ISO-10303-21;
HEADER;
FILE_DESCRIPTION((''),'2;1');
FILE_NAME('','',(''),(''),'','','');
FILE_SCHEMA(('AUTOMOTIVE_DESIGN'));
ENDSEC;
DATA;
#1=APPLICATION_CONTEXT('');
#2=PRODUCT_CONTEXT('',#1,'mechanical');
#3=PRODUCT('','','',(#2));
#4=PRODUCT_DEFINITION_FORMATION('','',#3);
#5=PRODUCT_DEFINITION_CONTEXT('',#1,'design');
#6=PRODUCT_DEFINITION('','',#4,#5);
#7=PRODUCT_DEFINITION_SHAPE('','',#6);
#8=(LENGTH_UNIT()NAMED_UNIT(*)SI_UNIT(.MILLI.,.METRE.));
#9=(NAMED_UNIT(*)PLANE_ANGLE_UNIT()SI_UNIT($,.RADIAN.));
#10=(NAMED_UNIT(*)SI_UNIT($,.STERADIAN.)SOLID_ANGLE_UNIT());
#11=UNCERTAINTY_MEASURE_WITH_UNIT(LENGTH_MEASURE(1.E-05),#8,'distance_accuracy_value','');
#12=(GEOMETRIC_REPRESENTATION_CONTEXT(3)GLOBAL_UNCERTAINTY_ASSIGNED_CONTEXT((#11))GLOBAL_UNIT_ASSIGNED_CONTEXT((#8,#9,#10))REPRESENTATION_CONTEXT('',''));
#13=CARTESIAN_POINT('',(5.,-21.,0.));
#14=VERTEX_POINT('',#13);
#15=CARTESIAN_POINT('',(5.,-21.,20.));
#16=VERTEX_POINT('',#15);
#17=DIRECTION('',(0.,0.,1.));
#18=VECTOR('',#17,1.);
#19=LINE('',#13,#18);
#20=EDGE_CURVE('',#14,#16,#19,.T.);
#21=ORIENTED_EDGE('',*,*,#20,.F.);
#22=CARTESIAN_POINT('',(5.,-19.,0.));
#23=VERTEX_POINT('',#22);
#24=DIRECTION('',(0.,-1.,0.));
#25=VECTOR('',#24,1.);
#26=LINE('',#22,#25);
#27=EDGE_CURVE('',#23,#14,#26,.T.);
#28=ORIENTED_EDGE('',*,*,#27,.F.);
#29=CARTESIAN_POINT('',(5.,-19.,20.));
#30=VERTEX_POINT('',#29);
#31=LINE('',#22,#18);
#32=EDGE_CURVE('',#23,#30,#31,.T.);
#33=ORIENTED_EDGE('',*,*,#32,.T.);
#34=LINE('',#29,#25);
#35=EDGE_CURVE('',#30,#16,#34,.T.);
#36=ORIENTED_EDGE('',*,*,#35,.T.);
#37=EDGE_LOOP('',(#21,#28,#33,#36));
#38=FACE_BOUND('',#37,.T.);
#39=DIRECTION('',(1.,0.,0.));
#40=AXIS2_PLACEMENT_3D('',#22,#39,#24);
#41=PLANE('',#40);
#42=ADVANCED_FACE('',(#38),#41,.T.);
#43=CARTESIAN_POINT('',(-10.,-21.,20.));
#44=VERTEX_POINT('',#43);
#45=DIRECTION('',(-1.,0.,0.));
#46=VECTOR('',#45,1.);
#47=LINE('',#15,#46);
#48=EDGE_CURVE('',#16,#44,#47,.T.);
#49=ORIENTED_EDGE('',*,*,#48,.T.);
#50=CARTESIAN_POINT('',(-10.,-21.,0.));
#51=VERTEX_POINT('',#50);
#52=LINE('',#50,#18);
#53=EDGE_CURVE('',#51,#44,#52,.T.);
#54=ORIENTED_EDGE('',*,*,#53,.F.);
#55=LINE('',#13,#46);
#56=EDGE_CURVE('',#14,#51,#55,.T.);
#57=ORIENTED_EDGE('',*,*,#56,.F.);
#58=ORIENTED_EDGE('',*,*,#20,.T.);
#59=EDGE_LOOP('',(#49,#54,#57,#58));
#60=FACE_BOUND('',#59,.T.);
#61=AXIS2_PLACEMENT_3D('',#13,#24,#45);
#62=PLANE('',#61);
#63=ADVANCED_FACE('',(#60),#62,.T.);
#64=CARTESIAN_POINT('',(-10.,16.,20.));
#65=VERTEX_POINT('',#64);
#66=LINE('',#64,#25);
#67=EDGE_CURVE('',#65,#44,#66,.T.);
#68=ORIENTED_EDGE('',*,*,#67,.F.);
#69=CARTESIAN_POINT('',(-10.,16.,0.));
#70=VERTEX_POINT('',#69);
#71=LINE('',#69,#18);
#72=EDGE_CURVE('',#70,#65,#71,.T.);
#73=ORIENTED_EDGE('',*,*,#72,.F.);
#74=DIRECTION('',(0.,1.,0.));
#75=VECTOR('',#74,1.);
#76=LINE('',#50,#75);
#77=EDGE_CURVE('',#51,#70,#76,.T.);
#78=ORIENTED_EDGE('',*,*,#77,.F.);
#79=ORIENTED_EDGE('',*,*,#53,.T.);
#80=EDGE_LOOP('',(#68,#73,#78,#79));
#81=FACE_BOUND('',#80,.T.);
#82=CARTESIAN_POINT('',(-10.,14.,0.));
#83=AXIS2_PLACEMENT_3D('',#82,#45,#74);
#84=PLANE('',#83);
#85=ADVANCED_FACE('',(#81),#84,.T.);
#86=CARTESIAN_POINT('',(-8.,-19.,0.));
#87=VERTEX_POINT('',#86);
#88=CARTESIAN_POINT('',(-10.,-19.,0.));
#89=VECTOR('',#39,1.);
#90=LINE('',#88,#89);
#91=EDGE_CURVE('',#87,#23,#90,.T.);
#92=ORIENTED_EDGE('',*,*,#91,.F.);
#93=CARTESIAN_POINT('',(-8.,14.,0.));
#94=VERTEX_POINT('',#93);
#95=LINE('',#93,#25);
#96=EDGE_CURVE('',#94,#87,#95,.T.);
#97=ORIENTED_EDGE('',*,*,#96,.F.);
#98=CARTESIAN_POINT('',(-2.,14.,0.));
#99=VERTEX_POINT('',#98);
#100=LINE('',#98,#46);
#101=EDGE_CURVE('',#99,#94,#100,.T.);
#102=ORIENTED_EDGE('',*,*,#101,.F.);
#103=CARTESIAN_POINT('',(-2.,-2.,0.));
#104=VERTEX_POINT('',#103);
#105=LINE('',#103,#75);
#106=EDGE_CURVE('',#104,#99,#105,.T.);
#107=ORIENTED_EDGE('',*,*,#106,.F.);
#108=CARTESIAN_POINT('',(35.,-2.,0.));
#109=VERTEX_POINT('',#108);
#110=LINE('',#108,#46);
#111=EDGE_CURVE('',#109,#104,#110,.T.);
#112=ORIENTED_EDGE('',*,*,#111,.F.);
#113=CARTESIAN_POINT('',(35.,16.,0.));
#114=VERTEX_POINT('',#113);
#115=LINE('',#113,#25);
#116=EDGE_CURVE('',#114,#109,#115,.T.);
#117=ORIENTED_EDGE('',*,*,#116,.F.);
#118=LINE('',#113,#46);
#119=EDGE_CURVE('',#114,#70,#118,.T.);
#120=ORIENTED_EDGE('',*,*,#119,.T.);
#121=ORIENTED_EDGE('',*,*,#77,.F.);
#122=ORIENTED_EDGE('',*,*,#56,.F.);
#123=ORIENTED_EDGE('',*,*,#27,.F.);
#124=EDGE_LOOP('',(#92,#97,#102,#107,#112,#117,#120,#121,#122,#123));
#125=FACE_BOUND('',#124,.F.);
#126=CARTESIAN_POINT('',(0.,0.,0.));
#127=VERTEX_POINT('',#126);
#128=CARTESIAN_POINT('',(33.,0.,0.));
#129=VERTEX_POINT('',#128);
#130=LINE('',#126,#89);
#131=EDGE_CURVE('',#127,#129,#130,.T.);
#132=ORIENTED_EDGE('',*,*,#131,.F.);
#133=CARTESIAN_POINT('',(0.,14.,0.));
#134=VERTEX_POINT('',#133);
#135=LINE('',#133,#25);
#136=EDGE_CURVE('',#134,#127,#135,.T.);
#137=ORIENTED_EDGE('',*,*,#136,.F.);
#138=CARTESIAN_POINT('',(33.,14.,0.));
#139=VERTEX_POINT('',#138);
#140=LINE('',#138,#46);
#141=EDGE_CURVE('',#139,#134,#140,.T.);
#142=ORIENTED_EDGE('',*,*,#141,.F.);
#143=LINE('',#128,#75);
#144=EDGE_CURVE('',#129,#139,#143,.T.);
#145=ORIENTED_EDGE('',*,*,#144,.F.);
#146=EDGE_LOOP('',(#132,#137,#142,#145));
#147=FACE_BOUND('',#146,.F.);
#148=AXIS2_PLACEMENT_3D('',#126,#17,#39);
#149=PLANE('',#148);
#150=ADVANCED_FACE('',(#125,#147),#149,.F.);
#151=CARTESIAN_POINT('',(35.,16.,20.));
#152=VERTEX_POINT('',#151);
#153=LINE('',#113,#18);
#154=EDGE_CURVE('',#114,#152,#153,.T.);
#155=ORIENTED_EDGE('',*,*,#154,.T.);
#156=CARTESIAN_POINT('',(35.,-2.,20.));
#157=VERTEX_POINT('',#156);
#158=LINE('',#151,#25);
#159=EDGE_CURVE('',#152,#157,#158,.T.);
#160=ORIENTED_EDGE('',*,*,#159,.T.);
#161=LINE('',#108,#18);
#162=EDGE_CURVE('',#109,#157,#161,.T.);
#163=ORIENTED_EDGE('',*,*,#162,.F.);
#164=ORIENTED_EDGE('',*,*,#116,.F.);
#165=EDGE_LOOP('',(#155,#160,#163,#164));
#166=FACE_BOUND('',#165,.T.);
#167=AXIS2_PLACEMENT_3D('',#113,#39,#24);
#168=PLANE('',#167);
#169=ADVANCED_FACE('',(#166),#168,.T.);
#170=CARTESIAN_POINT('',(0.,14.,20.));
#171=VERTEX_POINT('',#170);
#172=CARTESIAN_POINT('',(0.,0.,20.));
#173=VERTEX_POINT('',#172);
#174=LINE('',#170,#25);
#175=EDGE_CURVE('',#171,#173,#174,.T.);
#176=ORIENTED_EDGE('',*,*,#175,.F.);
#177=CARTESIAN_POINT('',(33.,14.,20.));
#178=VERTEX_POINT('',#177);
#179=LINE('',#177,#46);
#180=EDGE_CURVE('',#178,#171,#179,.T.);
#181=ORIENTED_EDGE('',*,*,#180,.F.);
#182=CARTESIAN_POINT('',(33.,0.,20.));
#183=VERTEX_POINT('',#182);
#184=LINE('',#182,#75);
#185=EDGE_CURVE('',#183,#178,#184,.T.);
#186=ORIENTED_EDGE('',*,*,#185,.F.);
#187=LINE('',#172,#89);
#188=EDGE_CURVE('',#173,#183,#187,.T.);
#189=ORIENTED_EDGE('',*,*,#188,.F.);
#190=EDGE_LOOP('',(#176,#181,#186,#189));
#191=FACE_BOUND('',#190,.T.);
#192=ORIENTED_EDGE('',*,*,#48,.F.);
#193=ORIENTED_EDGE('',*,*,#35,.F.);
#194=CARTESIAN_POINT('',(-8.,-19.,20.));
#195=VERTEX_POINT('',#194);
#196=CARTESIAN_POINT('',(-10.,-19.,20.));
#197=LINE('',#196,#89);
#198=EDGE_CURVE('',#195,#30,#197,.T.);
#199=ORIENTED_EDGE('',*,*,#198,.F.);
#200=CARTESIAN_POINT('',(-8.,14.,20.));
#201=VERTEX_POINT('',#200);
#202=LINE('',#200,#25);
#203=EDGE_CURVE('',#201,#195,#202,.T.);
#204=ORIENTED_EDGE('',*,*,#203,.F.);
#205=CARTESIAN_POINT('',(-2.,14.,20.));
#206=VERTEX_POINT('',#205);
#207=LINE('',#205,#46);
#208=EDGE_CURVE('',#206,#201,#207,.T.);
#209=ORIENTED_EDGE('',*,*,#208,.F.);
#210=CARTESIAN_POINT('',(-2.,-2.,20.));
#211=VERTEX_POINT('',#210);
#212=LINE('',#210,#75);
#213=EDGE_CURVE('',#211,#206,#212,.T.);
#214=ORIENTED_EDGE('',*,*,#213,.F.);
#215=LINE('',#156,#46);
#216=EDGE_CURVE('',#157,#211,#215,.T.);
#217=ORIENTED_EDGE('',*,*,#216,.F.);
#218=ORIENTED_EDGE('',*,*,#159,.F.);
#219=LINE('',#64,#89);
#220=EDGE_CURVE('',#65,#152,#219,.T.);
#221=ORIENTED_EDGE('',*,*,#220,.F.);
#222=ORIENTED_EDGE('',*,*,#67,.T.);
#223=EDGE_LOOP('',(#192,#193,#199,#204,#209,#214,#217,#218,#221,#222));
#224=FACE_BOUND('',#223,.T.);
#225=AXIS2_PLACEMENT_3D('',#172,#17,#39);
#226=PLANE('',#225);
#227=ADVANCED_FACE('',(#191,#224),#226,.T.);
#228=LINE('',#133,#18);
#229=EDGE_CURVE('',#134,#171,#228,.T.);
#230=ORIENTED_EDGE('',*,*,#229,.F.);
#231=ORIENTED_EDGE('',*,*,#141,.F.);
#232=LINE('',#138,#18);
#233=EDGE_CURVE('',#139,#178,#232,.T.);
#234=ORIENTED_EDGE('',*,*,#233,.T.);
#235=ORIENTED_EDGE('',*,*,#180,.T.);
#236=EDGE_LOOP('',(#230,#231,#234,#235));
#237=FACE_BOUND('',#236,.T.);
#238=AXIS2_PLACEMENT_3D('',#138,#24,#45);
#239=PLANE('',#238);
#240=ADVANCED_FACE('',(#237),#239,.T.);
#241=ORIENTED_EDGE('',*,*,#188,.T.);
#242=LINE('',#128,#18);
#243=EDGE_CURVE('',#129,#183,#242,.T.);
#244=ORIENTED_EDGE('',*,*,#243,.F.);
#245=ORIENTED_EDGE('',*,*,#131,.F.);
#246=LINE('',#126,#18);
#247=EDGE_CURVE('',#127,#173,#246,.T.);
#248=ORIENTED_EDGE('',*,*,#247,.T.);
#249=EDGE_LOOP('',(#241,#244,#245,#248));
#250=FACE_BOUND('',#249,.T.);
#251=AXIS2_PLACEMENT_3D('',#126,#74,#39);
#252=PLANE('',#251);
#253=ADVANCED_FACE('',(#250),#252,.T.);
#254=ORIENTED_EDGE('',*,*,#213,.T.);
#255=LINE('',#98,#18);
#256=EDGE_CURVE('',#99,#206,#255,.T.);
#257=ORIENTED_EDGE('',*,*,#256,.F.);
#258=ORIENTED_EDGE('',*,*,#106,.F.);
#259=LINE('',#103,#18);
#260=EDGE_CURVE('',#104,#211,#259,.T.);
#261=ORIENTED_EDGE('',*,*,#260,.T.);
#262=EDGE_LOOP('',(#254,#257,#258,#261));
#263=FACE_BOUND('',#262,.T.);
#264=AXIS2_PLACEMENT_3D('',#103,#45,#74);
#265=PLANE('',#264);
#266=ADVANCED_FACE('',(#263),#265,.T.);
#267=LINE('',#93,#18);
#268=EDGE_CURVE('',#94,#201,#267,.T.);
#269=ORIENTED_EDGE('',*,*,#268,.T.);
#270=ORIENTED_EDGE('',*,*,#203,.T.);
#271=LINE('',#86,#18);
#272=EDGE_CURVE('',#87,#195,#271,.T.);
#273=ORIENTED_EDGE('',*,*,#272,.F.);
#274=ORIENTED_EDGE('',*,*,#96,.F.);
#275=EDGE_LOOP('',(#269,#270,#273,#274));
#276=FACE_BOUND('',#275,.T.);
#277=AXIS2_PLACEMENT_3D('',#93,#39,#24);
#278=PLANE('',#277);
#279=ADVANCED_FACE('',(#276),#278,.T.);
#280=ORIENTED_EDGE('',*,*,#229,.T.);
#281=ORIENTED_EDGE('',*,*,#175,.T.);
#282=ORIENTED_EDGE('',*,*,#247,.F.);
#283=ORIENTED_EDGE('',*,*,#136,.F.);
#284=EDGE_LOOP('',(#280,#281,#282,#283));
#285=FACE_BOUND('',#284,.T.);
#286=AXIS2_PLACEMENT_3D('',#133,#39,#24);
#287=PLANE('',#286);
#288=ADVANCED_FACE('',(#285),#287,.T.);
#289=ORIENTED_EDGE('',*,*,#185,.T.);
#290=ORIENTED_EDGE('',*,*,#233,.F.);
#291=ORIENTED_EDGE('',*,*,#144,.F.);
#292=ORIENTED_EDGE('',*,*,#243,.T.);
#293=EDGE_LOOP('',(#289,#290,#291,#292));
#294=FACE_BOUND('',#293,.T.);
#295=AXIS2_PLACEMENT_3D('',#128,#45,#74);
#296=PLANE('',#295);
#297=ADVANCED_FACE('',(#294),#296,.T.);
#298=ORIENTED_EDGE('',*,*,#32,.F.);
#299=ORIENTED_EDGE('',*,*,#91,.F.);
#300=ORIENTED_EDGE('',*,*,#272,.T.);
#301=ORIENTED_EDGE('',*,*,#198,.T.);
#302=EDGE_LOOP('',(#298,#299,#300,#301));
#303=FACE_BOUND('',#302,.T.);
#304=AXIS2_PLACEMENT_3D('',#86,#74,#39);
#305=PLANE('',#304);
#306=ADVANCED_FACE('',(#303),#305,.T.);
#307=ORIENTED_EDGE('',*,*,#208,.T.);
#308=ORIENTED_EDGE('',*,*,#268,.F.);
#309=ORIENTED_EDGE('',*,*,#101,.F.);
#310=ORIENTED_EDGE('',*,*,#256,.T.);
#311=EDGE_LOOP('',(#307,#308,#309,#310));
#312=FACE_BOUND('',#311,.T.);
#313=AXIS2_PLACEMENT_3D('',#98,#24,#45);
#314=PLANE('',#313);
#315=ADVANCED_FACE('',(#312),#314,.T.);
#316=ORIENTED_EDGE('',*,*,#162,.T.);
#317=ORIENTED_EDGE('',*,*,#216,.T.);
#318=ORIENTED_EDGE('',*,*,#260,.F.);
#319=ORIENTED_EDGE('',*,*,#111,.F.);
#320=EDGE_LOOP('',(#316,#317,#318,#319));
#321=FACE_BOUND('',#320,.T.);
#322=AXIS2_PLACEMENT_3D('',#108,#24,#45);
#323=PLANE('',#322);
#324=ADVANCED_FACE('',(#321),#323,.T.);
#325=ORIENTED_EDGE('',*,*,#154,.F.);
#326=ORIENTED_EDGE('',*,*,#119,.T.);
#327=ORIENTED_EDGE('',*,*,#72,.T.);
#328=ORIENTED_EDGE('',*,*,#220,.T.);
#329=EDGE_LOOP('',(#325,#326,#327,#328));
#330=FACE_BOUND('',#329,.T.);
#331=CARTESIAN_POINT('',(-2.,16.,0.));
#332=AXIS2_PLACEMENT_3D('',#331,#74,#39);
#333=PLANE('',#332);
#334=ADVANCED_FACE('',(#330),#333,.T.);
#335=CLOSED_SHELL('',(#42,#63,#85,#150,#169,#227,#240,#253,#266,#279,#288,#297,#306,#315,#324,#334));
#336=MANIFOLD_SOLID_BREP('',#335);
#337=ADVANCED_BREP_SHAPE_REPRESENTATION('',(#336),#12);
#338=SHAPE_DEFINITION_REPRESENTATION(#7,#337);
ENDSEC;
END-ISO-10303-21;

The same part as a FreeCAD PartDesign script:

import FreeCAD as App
import Part
import Sketcher

V = App.Vector
Q = App.Units.Quantity


def add_polygon(sketch, points):
    """Adds a closed chain of lines whose ends are joined by coincident constraints."""
    first, n = sketch.GeometryCount, len(points)
    for a, b in zip(points, points[1:] + points[:1]):
        sketch.addGeometry(Part.LineSegment(App.Vector(*a, 0), App.Vector(*b, 0)), False)
    for i in range(n):
        sketch.addConstraint(Sketcher.Constraint("Coincident", first + i, 2, first + (i + 1) % n, 1))

doc = App.newDocument("Part")
body = doc.addObject("PartDesign::Body", "Body")

# Sketch on XY plane
sketch1 = body.newObject("Sketcher::SketchObject", "Sketch")
sketch1.AttachmentSupport = (doc.getObject("XY_Plane"), [""])
sketch1.MapMode = "FlatFace"
add_polygon(sketch1, [(35, 16), (-10, 16), (-10, -21), (5, -21), (5, -19), (-8, -19), (-8, 14), (-2, 14), (-2, -2), (35, -2)])  # lines 0-9
add_polygon(sketch1, [(33, 0), (0, 0), (0, 14), (33, 14)])  # lines 10-13
sketch1.addConstraint(Sketcher.Constraint("Horizontal", 0))
sketch1.addConstraint(Sketcher.Constraint("Vertical", 1))
sketch1.addConstraint(Sketcher.Constraint("Horizontal", 2))
sketch1.addConstraint(Sketcher.Constraint("Vertical", 3))
sketch1.addConstraint(Sketcher.Constraint("Horizontal", 4))
sketch1.addConstraint(Sketcher.Constraint("Vertical", 5))
sketch1.addConstraint(Sketcher.Constraint("Horizontal", 6))
sketch1.addConstraint(Sketcher.Constraint("Vertical", 7))
sketch1.addConstraint(Sketcher.Constraint("Horizontal", 8))
sketch1.addConstraint(Sketcher.Constraint("Vertical", 9))
sketch1.addConstraint(Sketcher.Constraint("Horizontal", 10))
sketch1.addConstraint(Sketcher.Constraint("Vertical", 11))
sketch1.addConstraint(Sketcher.Constraint("Horizontal", 12))
sketch1.addConstraint(Sketcher.Constraint("Vertical", 13))
sketch1.addConstraint(Sketcher.Constraint("Coincident", 10, 2, -1, 1))
sketch1.addConstraint(Sketcher.Constraint("Horizontal", 6, 2, 11, 2))
sketch1.addConstraint(Sketcher.Constraint("Equal", 8, 1))
sketch1.addConstraint(Sketcher.Constraint("Equal", 12, 5))
sketch1.addConstraint(Sketcher.Constraint("DistanceX", 2, 1, 2, 2, Q("15 mm")))
sketch1.addConstraint(Sketcher.Constraint("DistanceX", 10, 2, 10, 1, Q("33 mm")))
sketch1.addConstraint(Sketcher.Constraint("DistanceY", 3, 1, 3, 2, Q("2 mm")))
sketch1.addConstraint(Sketcher.Constraint("DistanceY", 11, 1, 11, 2, Q("14 mm")))
sketch1.addConstraint(Sketcher.Constraint("DistanceX", 6, 2, -1, 1, Q("2 mm")))
sketch1.addConstraint(Sketcher.Constraint("DistanceY", 7, 2, -1, 1, Q("2 mm")))
sketch1.addConstraint(Sketcher.Constraint("DistanceX", 1, 2, 4, 2, Q("2 mm")))
sketch1.addConstraint(Sketcher.Constraint("DistanceY", 5, 2, 0, 2, Q("2 mm")))
sketch1.addConstraint(Sketcher.Constraint("DistanceX", 0, 2, 0, 1, Q("45 mm")))
pad1 = body.newObject("PartDesign::Pad", "Pad")
pad1.Profile = sketch1
pad1.Length = 20

doc.recompute()
